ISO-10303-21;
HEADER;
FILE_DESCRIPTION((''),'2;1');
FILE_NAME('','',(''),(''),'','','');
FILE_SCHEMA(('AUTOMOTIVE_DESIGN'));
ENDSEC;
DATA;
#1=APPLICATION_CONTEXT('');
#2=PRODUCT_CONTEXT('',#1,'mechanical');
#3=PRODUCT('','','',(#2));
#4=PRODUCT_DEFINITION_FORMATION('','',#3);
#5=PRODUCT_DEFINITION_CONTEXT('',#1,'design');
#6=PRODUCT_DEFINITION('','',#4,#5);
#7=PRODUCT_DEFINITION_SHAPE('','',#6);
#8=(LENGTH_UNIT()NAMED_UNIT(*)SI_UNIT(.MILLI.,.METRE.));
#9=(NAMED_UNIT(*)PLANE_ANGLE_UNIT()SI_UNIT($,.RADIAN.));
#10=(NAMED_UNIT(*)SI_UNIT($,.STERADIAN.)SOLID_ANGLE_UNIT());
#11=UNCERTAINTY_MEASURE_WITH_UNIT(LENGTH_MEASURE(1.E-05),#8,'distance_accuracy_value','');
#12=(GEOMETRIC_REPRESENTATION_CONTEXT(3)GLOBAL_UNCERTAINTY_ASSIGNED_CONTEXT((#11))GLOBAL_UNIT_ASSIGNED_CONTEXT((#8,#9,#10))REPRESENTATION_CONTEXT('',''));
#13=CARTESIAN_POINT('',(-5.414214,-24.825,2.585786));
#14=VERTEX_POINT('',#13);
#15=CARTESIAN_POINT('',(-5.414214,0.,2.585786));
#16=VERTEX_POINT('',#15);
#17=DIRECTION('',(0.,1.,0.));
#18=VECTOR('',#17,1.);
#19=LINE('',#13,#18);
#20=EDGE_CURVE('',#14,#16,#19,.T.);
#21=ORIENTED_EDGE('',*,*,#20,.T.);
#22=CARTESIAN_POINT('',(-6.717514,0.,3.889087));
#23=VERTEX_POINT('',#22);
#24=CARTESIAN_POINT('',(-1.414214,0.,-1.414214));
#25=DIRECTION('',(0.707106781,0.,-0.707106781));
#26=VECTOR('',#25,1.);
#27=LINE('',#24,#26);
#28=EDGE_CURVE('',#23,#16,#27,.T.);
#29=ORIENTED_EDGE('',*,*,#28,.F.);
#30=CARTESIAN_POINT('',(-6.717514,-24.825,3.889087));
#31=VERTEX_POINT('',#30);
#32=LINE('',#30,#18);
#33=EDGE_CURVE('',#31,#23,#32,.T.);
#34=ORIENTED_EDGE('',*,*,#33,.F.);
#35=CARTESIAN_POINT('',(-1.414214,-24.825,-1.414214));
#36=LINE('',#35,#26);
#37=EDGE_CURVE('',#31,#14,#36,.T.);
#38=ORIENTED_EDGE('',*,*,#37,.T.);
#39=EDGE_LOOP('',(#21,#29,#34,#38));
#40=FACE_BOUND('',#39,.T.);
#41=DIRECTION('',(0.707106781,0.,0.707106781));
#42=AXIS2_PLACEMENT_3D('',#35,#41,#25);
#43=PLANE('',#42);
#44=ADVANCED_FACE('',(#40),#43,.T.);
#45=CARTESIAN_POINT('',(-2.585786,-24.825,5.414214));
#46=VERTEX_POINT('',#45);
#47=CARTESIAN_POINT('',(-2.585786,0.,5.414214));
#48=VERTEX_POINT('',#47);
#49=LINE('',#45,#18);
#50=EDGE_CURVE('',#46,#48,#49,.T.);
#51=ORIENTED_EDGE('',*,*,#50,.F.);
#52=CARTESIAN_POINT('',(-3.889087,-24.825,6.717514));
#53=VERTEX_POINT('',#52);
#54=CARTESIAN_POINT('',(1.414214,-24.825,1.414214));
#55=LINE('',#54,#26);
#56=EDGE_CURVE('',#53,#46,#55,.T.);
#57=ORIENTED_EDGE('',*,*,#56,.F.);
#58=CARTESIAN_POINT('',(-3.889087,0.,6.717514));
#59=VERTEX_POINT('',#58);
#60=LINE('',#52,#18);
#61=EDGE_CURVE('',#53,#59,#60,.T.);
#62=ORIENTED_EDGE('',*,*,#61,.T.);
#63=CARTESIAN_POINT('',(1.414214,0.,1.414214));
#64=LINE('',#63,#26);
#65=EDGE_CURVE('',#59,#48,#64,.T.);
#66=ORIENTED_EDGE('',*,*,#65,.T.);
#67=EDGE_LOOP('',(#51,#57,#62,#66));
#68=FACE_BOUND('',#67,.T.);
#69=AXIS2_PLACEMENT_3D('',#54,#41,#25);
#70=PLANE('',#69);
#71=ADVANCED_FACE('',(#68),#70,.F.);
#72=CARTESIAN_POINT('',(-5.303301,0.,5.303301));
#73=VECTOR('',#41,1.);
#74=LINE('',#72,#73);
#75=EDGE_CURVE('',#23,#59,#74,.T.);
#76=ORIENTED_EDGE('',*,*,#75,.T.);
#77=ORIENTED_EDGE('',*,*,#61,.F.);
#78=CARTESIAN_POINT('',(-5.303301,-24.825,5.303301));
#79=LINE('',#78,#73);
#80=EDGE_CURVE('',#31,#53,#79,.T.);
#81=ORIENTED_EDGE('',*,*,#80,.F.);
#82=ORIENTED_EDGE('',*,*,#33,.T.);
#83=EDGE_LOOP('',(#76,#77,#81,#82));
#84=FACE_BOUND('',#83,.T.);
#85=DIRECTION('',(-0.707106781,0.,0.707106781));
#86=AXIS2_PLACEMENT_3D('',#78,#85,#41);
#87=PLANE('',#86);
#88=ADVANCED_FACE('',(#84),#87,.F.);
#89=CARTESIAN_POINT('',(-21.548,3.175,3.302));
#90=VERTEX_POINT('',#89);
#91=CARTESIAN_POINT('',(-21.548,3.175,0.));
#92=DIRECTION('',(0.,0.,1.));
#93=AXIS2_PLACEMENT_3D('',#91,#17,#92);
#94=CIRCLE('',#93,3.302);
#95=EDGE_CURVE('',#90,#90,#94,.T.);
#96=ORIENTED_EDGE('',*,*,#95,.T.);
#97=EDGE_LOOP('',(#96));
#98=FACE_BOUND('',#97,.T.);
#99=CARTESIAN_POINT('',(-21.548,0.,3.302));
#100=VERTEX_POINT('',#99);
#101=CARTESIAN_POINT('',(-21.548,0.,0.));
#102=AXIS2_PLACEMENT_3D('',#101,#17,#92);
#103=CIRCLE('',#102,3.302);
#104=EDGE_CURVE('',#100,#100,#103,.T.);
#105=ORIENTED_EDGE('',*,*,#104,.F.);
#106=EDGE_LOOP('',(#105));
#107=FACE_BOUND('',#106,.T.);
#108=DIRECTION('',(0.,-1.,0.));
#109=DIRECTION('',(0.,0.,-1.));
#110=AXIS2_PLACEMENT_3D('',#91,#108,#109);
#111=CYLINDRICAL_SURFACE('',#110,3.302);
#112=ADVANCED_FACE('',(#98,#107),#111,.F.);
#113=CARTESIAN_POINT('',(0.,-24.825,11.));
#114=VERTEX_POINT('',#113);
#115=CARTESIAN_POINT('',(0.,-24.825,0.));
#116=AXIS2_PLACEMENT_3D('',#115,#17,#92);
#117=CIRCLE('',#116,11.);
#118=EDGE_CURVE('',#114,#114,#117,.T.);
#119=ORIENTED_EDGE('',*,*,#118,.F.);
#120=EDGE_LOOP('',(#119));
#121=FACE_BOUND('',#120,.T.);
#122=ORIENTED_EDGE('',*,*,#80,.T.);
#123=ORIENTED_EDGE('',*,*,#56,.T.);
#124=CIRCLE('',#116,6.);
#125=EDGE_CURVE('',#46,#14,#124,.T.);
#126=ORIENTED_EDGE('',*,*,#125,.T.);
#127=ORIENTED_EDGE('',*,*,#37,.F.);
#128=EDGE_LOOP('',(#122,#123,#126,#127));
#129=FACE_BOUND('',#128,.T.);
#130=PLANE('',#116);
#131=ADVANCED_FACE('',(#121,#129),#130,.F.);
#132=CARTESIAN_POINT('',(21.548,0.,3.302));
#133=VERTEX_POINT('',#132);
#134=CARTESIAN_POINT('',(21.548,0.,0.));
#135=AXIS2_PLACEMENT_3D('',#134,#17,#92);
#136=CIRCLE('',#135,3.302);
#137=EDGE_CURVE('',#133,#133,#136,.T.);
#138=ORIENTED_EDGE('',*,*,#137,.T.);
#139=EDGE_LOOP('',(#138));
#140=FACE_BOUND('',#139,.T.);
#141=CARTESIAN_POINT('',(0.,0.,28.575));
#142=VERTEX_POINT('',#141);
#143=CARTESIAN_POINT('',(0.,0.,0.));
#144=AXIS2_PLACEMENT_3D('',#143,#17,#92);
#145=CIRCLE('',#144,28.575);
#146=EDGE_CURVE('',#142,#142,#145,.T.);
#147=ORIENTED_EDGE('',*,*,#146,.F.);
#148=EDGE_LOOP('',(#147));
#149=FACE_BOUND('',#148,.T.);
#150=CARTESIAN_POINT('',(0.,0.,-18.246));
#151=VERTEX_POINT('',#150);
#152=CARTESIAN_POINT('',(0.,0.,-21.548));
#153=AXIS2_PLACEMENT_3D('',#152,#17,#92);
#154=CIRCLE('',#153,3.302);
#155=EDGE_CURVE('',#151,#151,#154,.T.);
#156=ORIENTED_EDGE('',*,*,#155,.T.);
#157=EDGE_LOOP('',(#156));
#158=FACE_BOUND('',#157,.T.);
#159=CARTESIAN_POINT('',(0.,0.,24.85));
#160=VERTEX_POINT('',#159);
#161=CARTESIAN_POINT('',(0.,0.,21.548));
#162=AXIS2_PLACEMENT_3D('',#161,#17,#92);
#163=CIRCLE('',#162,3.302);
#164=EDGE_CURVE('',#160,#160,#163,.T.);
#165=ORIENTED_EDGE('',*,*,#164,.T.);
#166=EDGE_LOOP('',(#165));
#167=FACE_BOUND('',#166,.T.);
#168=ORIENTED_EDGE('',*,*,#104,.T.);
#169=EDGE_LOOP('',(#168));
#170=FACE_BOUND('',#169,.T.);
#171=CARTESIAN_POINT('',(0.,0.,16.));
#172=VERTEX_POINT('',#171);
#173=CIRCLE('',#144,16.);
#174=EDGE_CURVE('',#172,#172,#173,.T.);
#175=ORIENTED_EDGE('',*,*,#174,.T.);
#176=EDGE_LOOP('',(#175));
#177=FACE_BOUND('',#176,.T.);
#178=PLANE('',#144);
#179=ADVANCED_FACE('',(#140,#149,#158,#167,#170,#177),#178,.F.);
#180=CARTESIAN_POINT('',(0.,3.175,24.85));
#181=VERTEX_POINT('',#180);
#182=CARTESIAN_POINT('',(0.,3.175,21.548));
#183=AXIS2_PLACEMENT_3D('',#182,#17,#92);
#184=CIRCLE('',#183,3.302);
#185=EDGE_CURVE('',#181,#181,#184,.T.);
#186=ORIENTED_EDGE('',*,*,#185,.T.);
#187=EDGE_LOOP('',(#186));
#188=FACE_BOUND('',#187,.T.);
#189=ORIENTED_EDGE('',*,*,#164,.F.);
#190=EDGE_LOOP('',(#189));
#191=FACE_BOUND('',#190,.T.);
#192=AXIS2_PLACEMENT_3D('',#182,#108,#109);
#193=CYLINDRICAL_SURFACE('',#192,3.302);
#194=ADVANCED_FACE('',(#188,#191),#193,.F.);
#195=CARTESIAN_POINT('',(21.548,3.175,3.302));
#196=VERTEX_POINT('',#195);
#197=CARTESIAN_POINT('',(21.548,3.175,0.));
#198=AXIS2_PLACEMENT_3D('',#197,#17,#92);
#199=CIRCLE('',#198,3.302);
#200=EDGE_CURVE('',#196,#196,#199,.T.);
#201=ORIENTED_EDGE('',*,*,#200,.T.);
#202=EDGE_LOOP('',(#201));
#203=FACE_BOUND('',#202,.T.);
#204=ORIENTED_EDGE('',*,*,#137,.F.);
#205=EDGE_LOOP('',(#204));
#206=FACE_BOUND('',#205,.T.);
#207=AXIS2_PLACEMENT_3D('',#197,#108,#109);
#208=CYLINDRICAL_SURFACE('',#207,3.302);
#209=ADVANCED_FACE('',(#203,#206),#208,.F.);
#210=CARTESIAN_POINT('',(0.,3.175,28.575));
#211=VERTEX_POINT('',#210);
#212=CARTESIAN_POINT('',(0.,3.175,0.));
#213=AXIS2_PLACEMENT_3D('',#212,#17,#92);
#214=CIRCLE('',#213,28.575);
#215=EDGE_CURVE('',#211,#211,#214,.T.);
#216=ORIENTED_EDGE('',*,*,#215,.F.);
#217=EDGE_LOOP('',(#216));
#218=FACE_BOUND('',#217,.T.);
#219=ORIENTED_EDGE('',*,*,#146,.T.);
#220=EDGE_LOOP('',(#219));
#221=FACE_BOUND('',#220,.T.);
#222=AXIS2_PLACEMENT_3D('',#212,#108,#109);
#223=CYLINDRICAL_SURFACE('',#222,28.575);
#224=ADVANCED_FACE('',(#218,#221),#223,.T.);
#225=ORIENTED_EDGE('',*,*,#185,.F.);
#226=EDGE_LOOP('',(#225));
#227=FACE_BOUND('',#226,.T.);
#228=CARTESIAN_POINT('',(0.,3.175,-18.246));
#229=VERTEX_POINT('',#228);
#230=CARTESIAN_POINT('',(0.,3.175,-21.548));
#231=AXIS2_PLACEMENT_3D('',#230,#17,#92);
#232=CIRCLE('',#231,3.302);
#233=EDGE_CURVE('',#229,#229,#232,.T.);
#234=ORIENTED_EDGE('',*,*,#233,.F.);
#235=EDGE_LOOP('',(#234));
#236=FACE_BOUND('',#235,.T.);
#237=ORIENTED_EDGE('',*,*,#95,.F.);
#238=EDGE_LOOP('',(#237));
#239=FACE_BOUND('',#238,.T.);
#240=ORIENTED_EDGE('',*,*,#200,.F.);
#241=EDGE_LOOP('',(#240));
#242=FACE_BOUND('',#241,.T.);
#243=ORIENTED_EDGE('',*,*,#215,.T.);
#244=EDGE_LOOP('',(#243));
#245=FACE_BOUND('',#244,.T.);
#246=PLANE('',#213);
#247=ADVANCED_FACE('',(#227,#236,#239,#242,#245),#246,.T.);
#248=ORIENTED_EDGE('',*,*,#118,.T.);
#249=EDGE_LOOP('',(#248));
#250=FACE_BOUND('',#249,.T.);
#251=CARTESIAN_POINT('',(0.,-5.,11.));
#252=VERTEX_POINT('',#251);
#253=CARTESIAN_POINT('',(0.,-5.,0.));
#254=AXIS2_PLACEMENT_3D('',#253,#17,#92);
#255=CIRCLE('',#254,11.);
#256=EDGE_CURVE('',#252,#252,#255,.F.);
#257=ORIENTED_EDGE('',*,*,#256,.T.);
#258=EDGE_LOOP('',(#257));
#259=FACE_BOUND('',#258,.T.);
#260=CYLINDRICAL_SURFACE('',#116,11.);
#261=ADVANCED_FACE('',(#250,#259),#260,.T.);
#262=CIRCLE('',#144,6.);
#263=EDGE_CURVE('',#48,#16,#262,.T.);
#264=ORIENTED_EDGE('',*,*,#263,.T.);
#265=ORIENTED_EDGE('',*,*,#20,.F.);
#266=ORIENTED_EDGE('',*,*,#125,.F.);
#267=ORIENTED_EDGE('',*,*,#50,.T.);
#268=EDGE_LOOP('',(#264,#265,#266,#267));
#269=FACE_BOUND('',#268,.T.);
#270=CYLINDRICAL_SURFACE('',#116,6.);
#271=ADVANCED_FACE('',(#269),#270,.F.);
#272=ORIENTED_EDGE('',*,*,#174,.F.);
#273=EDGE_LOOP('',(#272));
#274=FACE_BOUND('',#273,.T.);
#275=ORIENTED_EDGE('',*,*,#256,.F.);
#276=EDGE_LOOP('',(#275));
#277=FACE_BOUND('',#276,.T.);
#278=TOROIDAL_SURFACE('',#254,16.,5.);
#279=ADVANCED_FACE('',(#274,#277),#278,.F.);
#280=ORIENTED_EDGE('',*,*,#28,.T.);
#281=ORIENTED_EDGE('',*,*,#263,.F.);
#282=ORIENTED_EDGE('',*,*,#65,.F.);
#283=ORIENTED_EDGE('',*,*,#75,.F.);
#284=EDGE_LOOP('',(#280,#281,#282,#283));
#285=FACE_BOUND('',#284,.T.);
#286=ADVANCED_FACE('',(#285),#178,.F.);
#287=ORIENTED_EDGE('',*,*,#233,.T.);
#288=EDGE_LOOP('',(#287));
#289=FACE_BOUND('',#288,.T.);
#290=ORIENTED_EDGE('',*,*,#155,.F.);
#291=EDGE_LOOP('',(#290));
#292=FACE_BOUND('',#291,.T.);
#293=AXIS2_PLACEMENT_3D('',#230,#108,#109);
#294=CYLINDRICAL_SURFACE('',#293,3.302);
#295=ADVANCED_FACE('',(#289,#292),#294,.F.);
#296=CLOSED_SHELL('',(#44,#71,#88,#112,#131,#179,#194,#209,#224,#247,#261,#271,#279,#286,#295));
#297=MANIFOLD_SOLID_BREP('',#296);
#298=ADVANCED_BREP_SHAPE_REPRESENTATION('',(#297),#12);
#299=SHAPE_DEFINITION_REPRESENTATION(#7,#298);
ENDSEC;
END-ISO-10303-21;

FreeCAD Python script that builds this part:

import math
import FreeCAD as App
import Part
import Sketcher

V = App.Vector
Q = App.Units.Quantity


def edges_at(feature, points):
    """Names of the edges that pass closest to the given points."""
    edges = feature.Shape.Edges
    near = lambda p: min(range(len(edges)), key=lambda i: edges[i].distToShape(Part.Vertex(*p))[0])
    return sorted({f"Edge{near(p) + 1}" for p in points})

doc = App.newDocument("Part")
body = doc.addObject("PartDesign::Body", "Body")

# Sketch on XZ plane
sketch1 = body.newObject("Sketcher::SketchObject", "Sketch")
sketch1.AttachmentSupport = (doc.getObject("XZ_Plane"), [""])
sketch1.MapMode = "FlatFace"
sketch1.addGeometry([
    Part.Circle(V(0, 0, 0), V(0, 0, 1), 28.6),  # 0
    Part.Circle(V(0, 21.5, 0), V(0, 0, 1), 3.3),  # 1
    Part.Circle(V(-21.5, 0, 0), V(0, 0, 1), 3.3),  # 2
    Part.Circle(V(0, 0, 0), V(0, 0, 1), 11),  # 3
    Part.Circle(V(21.5, 0, 0), V(0, 0, 1), 3.3),  # 4
    Part.Circle(V(0, -21.5, 0), V(0, 0, 1), 3.3),  # 5
], False)
sketch1.addConstraint([
    Sketcher.Constraint("Coincident", 0, 3, -1, 1),
    Sketcher.Constraint("Coincident", 3, 3, -1, 1),
    Sketcher.Constraint("Equal", 1, 2),
    Sketcher.Constraint("Equal", 2, 4),
    Sketcher.Constraint("Equal", 4, 5),
    Sketcher.Constraint("Symmetric", 2, 3, 4, 3, -1, 1),
    Sketcher.Constraint("Symmetric", 1, 3, 5, 3, -1, 1),
    Sketcher.Constraint("PointOnObject", 1, 3, -2),
    Sketcher.Constraint("PointOnObject", 2, 3, -1),
    Sketcher.Constraint("Diameter", 3, 22.0),
    Sketcher.Constraint("Diameter", 0, 57.15),
    Sketcher.Constraint("Diameter", 1, 6.604),
    Sketcher.Constraint("DistanceY", -1, 1, 1, 3, 21.548),
    Sketcher.Constraint("DistanceX", 2, 3, -1, 1, 21.548),
])
pad1 = body.newObject("PartDesign::Pad", "Pad")
pad1.Profile = sketch1
pad1.Length = 3.175
pad1.Reversed = True

# Sketch on XZ plane
sketch2 = body.newObject("Sketcher::SketchObject", "Sketch001")
sketch2.AttachmentSupport = (doc.getObject("XZ_Plane"), [""])
sketch2.MapMode = "FlatFace"
sketch2.addGeometry(Part.Circle(V(0, 0, 0), V(0, 0, 1), 11), False)
sketch2.addConstraint([
    Sketcher.Constraint("Coincident", 0, 3, -1, 1),
    Sketcher.Constraint("Diameter", 0, 22.0),
])
pad2 = body.newObject("PartDesign::Pad", "Pad001")
pad2.Profile = sketch2
pad2.Length = 3.175
pad2.Reversed = True

# Sketch on XZ plane
sketch3 = body.newObject("Sketcher::SketchObject", "Sketch002")
sketch3.AttachmentSupport = (doc.getObject("XZ_Plane"), [""])
sketch3.MapMode = "FlatFace"
sketch3.addGeometry([
    Part.Circle(V(0, 0, 0), V(0, 0, 1), 11),  # 0
    Part.LineSegment(V(-6.7, 3.9, 0), V(-5.4, 2.6, 0)),  # 1
    Part.ArcOfCircle(Part.Circle(V(0, 0, 0), V(0, 0, 1), 6), math.radians(154), math.radians(360)),  # 2
    Part.ArcOfCircle(Part.Circle(V(0, 0, 0), V(0, 0, 1), 6), math.radians(0), math.radians(116)),  # 3
    Part.LineSegment(V(-2.6, 5.4, 0), V(-3.9, 6.7, 0)),  # 4
    Part.LineSegment(V(-3.9, 6.7, 0), V(-6.7, 3.9, 0)),  # 5
], False)
sketch3.addConstraint([
    Sketcher.Constraint("Coincident", 1, 2, 2, 1),
    Sketcher.Constraint("Tangent", 2, 2, 3, 1),
    Sketcher.Constraint("Coincident", 3, 2, 4, 1),
    Sketcher.Constraint("Coincident", 4, 2, 5, 1),
    Sketcher.Constraint("Coincident", 5, 2, 1, 1),
    Sketcher.Constraint("Coincident", 0, 3, -1, 1),
    Sketcher.Constraint("Coincident", 2, 3, -1, 1),
    Sketcher.Constraint("Equal", 2, 3),
    Sketcher.Constraint("PointOnObject", 2, 2, -1),
    Sketcher.Constraint("Parallel", 1, 4),
    Sketcher.Constraint("Perpendicular", 4, 5),
    Sketcher.Constraint("Equal", 1, 4),
    Sketcher.Constraint("Diameter", 0, 22.0),
    Sketcher.Constraint("Radius", 2, 6.0),
    Sketcher.Constraint("Angle", 1, Q("-45 deg")),
    Sketcher.Constraint("Distance", 5, 4.0),
    Sketcher.Constraint("DistanceX", 4, 2, 3, 2, 1.303301),
])
pad3 = body.newObject("PartDesign::Pad", "Pad002")
pad3.Profile = sketch3
pad3.Length = 24.825
doc.recompute()

fillet = body.newObject("PartDesign::Fillet", "Fillet")
fillet.Base = (pad3, edges_at(pad3, [(-11, 0, 0)]))
fillet.Radius = 5

doc.recompute()
